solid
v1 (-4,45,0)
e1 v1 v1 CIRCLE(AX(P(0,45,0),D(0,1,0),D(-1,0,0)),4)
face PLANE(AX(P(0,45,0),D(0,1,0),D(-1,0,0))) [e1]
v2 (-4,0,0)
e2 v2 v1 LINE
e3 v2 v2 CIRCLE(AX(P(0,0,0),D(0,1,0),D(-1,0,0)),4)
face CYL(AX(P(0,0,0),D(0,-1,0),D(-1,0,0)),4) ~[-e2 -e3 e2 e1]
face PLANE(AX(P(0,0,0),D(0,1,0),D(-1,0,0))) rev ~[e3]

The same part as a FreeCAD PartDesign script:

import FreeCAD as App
import Part
import Sketcher

doc = App.newDocument("Part")
body = doc.addObject("PartDesign::Body", "Body")

# Sketch on XZ plane
sketch1 = body.newObject("Sketcher::SketchObject", "Sketch")
sketch1.AttachmentSupport = (doc.getObject("XZ_Plane"), [""])
sketch1.MapMode = "FlatFace"
sketch1.addGeometry(Part.Circle(App.Vector(0, 0, 0), App.Vector(0, 0, 1), 4), False)
sketch1.addConstraint(Sketcher.Constraint("Coincident", 0, 3, -1, 1))
sketch1.addConstraint(Sketcher.Constraint("Diameter", 0, 8.0))
pad1 = body.newObject("PartDesign::Pad", "Pad")
pad1.Profile = sketch1
pad1.Length = 45
pad1.Reversed = True

doc.recompute()
